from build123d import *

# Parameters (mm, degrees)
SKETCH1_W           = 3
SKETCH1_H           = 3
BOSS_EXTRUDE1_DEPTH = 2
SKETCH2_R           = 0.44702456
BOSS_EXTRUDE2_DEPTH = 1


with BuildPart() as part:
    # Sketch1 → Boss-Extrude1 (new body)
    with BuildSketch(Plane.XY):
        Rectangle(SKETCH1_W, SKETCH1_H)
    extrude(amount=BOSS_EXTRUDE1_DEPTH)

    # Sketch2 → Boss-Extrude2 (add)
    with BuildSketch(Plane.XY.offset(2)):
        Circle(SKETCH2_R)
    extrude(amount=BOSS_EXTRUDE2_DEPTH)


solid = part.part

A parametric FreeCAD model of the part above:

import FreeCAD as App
import Part
import Sketcher
from FreeCAD import Vector
Q = App.Units.Quantity

doc = App.newDocument("Part")
params = doc.addObject("Spreadsheet::Sheet", "Params")
for row, (alias, value) in enumerate([
    ("sketch1_width", "3 mm"),
    ("pad1_length", "2 mm"),
    ("pad2_length", "1 mm"),
], start=1):
    params.set(f"A{row}", alias)
    params.set(f"B{row}", "=" + value)
    params.setAlias(f"B{row}", alias)

body = doc.addObject("PartDesign::Body", "Body")

# Sketch on XY plane
sketch1 = body.newObject("Sketcher::SketchObject", "Sketch")
sketch1.AttachmentSupport = (doc.getObject("XY_Plane"), [""])
sketch1.MapMode = "FlatFace"
sketch1.addGeometry([
    Part.LineSegment(Vector(-1.5, 1.5, 0), Vector(-1.5, -1.5, 0)),
    Part.LineSegment(Vector(-1.5, -1.5, 0), Vector(1.5, -1.5, 0)),
    Part.LineSegment(Vector(1.5, -1.5, 0), Vector(1.5, 1.5, 0)),
    Part.LineSegment(Vector(1.5, 1.5, 0), Vector(-1.5, 1.5, 0)),
], False)
sketch1.addConstraint([
    Sketcher.Constraint("Coincident", 0, 2, 1, 1),
    Sketcher.Constraint("Coincident", 1, 2, 2, 1),
    Sketcher.Constraint("Coincident", 2, 2, 3, 1),
    Sketcher.Constraint("Coincident", 3, 2, 0, 1),
    Sketcher.Constraint("Vertical", 0),
    Sketcher.Constraint("Horizontal", 1),
    Sketcher.Constraint("Vertical", 2),
    Sketcher.Constraint("Horizontal", 3),
    Sketcher.Constraint("Symmetric", 0, 2, 2, 2, -1, 1),
    Sketcher.Constraint("Equal", 3, 0),
    Sketcher.Constraint("DistanceX", 1, 1, 1, 2, Q("3 mm")),
])
sketch1.setExpression("Constraints[10]", "Params.sketch1_width")
pad1 = body.newObject("PartDesign::Pad", "Pad")
pad1.Profile = sketch1
pad1.setExpression("Length", "Params.pad1_length")

# Sketch on XY plane
sketch2 = body.newObject("Sketcher::SketchObject", "Sketch001")
sketch2.AttachmentSupport = (doc.getObject("XY_Plane"), [""])
sketch2.MapMode = "FlatFace"
sketch2.AttachmentOffset = App.Placement(Vector(0, 0, 2), App.Rotation())
sketch2.addGeometry(Part.Circle(Vector(0, 0, 0), Vector(0, 0, 1), 0.45), False)
sketch2.addConstraint([
    Sketcher.Constraint("Coincident", 0, 3, -1, 1),
    Sketcher.Constraint("Diameter", 0, Q("0.894049 mm")),
])
pad2 = body.newObject("PartDesign::Pad", "Pad001")
pad2.Profile = sketch2
pad2.setExpression("Length", "Params.pad2_length")

doc.recompute()
